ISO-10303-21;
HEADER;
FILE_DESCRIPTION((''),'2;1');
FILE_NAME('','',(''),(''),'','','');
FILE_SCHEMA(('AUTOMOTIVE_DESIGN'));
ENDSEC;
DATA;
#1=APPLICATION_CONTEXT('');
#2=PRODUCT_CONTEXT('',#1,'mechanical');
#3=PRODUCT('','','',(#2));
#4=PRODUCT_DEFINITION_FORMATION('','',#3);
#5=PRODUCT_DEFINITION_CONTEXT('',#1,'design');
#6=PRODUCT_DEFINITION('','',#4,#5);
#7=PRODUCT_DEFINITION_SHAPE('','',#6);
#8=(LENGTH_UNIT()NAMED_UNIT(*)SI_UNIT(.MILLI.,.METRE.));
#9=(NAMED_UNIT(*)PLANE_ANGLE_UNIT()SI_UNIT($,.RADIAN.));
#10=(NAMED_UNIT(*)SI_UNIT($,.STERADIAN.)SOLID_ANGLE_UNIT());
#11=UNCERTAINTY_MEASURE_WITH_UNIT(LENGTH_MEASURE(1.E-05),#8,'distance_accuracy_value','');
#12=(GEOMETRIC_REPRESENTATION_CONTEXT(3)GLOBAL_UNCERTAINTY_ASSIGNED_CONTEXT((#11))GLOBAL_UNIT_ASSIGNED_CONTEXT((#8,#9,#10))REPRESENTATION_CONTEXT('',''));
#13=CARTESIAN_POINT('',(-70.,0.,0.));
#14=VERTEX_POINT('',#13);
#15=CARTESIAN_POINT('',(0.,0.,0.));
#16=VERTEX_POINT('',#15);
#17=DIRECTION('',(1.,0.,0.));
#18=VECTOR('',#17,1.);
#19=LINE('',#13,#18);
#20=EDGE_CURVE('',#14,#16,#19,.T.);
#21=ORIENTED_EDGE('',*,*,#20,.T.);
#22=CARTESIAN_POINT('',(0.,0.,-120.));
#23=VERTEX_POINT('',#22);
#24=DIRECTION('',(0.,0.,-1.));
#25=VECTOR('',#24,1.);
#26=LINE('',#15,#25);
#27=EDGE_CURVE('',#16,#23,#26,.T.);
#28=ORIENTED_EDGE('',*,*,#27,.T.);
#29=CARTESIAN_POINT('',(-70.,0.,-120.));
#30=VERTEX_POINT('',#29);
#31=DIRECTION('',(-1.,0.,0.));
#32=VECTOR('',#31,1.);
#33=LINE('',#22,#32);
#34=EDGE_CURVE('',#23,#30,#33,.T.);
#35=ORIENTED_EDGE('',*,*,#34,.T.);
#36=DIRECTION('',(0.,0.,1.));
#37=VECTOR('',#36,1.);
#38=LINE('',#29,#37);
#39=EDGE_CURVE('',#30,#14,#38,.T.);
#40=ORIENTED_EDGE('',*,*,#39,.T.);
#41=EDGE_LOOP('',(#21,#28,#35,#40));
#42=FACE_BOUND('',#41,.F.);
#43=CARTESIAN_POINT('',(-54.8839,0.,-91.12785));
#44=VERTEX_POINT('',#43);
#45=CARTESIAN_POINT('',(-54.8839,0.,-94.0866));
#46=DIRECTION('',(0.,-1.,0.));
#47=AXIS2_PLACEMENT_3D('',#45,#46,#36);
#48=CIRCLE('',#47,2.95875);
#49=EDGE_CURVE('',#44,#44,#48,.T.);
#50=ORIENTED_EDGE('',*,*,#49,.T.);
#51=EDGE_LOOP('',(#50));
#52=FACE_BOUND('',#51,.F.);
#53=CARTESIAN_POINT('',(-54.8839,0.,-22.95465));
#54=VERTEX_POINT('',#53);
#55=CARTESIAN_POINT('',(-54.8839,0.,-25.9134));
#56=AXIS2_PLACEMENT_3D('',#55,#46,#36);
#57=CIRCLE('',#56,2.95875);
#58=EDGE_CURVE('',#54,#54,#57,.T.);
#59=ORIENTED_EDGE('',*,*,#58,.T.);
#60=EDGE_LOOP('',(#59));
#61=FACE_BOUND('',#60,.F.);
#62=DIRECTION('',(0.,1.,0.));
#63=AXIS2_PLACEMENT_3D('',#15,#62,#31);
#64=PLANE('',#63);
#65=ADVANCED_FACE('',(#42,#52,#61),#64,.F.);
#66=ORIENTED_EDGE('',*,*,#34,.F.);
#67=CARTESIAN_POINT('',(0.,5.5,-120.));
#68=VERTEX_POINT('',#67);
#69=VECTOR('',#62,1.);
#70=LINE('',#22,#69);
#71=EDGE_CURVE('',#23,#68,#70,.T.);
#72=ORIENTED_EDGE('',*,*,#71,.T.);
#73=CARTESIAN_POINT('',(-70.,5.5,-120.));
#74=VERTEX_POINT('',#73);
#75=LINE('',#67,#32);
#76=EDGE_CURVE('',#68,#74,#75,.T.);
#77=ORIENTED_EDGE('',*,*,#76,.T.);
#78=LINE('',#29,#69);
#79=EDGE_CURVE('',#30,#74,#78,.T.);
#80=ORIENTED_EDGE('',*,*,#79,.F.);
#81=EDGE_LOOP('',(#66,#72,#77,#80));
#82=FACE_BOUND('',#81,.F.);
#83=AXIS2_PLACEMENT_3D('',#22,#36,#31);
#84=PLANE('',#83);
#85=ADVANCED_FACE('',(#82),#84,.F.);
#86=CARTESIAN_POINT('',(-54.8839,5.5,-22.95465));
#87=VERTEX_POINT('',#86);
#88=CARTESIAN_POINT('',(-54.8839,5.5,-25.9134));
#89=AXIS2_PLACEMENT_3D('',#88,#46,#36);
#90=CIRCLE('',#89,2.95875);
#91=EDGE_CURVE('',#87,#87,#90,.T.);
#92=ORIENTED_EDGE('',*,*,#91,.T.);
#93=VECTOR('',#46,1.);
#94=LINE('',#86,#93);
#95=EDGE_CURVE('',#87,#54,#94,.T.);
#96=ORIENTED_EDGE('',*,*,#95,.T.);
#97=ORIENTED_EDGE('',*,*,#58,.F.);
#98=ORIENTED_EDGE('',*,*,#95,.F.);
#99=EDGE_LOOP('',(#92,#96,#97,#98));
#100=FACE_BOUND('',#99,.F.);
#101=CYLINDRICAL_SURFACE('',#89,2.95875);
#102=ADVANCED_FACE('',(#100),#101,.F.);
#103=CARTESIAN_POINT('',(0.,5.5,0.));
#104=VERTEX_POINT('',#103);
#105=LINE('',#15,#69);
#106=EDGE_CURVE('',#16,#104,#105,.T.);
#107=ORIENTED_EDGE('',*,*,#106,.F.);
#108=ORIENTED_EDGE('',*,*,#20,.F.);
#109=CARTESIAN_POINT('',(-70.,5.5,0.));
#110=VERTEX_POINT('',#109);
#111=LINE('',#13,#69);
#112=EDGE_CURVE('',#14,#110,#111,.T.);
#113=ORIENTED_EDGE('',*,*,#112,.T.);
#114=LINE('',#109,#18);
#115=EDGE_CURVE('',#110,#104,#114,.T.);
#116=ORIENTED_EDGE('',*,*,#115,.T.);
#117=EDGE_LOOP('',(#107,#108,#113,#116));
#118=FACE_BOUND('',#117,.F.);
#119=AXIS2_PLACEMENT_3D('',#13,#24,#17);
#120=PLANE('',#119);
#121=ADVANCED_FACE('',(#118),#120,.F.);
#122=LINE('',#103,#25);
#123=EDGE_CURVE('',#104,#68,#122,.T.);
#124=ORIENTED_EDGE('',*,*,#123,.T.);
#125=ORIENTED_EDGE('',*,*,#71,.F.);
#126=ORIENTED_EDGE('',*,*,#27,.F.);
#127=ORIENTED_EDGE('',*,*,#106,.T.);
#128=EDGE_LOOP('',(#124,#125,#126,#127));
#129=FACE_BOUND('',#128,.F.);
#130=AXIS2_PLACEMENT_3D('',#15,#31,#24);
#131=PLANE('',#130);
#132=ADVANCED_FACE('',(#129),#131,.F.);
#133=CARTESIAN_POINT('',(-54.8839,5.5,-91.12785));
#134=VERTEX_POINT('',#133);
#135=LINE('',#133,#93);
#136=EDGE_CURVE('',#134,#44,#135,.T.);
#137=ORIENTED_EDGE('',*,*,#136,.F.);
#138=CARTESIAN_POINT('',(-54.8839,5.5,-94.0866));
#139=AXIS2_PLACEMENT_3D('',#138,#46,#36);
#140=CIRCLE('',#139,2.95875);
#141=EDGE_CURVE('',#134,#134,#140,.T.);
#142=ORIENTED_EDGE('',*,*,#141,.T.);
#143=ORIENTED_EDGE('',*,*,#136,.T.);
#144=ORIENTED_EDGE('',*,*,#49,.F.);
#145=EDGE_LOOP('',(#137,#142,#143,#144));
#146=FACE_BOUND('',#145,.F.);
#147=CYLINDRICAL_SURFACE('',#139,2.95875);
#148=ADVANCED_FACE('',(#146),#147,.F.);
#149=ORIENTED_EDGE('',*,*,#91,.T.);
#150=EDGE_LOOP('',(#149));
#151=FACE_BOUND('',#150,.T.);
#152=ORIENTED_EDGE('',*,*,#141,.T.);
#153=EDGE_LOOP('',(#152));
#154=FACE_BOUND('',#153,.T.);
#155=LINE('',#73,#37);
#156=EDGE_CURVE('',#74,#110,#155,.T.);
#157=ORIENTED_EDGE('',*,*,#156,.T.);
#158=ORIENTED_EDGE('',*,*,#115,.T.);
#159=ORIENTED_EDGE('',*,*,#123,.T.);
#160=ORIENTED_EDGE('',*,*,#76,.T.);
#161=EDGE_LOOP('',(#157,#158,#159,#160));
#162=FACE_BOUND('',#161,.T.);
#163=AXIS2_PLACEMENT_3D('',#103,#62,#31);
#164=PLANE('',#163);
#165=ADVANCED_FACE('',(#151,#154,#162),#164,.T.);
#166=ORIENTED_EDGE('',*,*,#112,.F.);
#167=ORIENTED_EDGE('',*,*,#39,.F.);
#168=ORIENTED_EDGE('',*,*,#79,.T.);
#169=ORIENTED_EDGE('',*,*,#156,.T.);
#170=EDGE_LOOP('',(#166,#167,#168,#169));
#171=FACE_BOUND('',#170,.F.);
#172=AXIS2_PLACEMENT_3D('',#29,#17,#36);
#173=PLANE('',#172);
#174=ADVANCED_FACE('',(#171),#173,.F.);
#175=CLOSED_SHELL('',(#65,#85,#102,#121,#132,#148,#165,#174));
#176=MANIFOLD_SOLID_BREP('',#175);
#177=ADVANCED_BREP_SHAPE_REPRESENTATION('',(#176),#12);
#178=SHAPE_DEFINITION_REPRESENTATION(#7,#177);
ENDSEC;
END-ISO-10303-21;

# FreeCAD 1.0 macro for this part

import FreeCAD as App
import Part
import Sketcher
from FreeCAD import Vector


def add_polygon(sketch, points):
    """Adds a closed chain of lines whose ends are joined by coincident constraints."""
    first, n = sketch.GeometryCount, len(points)
    for a, b in zip(points, points[1:] + points[:1]):
        sketch.addGeometry(Part.LineSegment(App.Vector(*a, 0), App.Vector(*b, 0)), False)
    for i in range(n):
        sketch.addConstraint(Sketcher.Constraint("Coincident", first + i, 2, first + (i + 1) % n, 1))

doc = App.newDocument("Part")
body = doc.addObject("PartDesign::Body", "Body")

# Sketch on XZ plane
sketch1 = body.newObject("Sketcher::SketchObject", "Sketch")
sketch1.AttachmentSupport = (doc.getObject("XZ_Plane"), [""])
sketch1.MapMode = "FlatFace"
add_polygon(sketch1, [(-70, 0), (0, 0), (0, -120), (-70, -120)])  # lines 0-3
sketch1.addConstraint([
    Sketcher.Constraint("Horizontal", 0),
    Sketcher.Constraint("Vertical", 1),
    Sketcher.Constraint("Horizontal", 2),
    Sketcher.Constraint("Vertical", 3),
    Sketcher.Constraint("Coincident", 0, 2, -1, 1),
    Sketcher.Constraint("DistanceX", 0, 1, 0, 2, 70.0),
    Sketcher.Constraint("DistanceY", 1, 2, 1, 1, 120.0),
])
pad1 = body.newObject("PartDesign::Pad", "Pad")
pad1.Profile = sketch1
pad1.Length = 5.5
pad1.Reversed = True

# Sketch on XZ plane
sketch2 = body.newObject("Sketcher::SketchObject", "Sketch001")
sketch2.AttachmentSupport = (doc.getObject("XZ_Plane"), [""])
sketch2.MapMode = "FlatFace"
sketch2.AttachmentOffset = App.Placement(Vector(0, 0, -5.5), App.Rotation())
sketch2.addGeometry([
    Part.Circle(Vector(-54.9, -94.1, 0), Vector(0, 0, 1), 3),
    Part.Circle(Vector(-54.9, -25.9, 0), Vector(0, 0, 1), 3),
], False)
sketch2.addConstraint([
    Sketcher.Constraint("Equal", 0, 1),
    Sketcher.Constraint("Vertical", 0, 3, 1, 3),
    Sketcher.Constraint("Diameter", 0, 5.9175),
    Sketcher.Constraint("DistanceX", 0, 3, -1, 1, 54.884),
    Sketcher.Constraint("DistanceY", 0, 3, -1, 1, 94.0866),
    Sketcher.Constraint("DistanceY", 1, 3, -1, 1, 25.9134),
])
doc.recompute()
hole = body.newObject("PartDesign::Hole", "Hole")
hole.Profile = sketch2
hole.ThreadType = "None"
hole.Diameter = 5.9175
hole.DepthType = "Dimension"
hole.Depth = 19.1
hole.DrillPoint = "Angled"
hole.DrillPointAngle = 118
hole.Reversed = True

doc.recompute()
